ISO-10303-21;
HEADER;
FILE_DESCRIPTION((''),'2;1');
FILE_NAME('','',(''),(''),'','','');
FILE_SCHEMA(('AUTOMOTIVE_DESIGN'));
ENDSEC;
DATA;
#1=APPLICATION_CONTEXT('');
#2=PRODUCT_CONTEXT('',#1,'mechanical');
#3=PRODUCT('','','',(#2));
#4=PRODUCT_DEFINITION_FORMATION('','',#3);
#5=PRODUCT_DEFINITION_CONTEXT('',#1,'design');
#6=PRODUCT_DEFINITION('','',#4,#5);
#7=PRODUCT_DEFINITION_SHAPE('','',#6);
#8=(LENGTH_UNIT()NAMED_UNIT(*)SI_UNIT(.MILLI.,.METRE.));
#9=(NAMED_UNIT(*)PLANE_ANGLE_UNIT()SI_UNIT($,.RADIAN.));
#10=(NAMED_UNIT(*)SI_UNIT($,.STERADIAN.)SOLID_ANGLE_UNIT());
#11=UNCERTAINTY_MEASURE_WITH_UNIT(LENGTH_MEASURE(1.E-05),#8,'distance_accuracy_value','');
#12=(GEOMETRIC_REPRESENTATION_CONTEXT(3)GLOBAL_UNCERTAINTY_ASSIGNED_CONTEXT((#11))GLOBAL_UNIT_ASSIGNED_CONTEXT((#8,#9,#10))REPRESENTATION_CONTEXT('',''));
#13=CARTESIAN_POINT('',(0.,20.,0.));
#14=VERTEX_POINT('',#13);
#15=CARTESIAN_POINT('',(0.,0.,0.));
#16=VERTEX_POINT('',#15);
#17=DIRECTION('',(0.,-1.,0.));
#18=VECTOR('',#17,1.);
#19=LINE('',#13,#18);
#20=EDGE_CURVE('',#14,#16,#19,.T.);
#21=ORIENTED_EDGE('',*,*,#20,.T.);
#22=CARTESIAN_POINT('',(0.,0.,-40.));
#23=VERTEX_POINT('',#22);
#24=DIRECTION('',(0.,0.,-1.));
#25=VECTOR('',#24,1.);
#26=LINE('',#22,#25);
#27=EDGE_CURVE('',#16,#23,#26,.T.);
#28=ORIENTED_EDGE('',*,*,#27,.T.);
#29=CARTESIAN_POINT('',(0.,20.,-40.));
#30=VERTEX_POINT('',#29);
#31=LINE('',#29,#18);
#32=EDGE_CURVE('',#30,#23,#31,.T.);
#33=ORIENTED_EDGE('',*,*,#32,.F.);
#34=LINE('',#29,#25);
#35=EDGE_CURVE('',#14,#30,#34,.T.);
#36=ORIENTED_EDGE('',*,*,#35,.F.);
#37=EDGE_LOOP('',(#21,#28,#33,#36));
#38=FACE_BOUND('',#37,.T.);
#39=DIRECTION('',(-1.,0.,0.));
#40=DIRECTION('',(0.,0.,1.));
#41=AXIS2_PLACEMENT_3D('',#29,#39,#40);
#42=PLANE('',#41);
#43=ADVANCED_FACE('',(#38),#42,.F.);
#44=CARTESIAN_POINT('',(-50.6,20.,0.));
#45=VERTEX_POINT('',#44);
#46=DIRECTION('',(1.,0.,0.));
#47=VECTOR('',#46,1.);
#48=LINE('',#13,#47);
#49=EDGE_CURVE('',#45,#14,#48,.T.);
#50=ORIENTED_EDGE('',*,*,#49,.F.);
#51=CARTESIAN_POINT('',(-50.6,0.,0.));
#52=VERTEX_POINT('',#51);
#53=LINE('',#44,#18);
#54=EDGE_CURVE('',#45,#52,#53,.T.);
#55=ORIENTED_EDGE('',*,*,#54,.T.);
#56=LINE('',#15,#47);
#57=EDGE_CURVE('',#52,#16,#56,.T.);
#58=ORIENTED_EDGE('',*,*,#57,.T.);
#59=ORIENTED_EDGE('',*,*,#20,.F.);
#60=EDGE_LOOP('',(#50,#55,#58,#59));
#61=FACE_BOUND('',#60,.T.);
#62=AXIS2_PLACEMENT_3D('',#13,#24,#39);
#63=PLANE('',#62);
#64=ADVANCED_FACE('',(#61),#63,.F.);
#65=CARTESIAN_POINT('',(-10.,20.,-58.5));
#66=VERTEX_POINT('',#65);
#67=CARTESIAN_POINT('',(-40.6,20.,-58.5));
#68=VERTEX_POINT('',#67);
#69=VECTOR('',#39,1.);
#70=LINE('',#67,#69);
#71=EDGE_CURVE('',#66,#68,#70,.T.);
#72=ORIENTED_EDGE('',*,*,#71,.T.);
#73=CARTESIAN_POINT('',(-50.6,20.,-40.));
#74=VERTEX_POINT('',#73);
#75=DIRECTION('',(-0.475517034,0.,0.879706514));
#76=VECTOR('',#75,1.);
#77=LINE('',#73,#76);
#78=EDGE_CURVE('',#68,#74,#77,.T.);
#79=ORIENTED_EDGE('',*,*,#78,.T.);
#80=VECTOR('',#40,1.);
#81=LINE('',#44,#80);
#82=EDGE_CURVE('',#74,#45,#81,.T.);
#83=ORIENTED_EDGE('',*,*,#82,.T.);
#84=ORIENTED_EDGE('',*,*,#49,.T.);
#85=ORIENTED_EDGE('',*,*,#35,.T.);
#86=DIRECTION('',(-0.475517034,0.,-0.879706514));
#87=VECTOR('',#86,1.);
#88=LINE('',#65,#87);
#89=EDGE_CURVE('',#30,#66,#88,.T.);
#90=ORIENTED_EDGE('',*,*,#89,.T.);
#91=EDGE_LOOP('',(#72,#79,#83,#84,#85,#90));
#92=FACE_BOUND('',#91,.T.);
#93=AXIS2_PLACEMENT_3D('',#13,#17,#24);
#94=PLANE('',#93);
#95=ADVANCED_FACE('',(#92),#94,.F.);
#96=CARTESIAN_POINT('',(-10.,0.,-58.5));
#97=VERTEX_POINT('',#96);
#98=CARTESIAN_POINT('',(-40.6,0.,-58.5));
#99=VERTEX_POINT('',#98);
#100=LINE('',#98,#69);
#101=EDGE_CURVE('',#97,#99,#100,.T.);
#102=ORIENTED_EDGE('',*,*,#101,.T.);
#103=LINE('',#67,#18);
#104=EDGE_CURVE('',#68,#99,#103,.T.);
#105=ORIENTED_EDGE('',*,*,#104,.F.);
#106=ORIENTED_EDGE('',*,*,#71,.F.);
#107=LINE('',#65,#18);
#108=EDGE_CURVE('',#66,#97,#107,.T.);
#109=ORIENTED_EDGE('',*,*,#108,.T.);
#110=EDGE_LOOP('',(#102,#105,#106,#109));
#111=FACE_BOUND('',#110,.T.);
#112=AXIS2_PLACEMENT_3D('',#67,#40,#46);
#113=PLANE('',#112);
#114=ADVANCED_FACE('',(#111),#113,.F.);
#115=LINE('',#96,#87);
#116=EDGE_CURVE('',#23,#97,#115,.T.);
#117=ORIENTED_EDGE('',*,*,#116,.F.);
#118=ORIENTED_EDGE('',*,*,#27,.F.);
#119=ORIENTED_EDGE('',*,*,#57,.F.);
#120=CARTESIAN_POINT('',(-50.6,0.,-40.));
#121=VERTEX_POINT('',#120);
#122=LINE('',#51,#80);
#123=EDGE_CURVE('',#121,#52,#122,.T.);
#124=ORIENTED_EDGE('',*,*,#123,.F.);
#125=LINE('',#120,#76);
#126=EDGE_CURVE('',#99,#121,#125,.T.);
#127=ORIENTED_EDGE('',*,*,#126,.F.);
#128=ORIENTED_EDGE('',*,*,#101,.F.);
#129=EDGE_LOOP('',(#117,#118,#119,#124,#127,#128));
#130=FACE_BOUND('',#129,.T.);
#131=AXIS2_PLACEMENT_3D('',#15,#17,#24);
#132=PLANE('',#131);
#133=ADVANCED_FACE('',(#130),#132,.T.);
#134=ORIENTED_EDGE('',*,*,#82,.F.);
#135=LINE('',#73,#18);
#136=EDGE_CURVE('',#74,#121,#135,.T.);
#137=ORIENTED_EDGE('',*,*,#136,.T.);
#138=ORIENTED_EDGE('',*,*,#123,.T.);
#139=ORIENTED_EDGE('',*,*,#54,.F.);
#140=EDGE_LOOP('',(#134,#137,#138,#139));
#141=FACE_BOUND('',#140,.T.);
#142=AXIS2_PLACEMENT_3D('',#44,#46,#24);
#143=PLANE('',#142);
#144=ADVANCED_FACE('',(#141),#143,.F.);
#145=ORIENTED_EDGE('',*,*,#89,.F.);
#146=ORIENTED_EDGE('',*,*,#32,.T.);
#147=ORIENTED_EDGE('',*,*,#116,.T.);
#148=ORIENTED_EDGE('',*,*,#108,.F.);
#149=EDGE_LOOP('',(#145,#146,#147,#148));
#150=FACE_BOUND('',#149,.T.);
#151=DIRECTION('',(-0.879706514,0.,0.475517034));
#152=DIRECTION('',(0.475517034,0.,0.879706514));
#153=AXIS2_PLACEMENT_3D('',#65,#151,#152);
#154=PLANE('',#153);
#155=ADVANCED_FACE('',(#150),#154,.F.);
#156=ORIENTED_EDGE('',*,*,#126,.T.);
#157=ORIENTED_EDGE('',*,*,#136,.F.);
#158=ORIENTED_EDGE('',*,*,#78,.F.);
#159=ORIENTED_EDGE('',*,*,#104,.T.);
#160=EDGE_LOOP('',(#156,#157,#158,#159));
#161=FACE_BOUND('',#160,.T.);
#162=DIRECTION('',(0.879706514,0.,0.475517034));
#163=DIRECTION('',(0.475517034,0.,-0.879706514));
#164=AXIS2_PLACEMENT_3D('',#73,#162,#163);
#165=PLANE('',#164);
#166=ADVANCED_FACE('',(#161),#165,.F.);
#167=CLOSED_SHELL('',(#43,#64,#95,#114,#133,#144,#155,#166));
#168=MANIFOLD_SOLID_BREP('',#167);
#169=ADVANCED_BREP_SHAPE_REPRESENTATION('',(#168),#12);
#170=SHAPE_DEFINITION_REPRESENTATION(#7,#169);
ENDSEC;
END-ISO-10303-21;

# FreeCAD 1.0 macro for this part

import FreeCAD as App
import Part
import Sketcher
Q = App.Units.Quantity


def add_polygon(sketch, points):
    """Adds a closed chain of lines whose ends are joined by coincident constraints."""
    first, n = sketch.GeometryCount, len(points)
    for a, b in zip(points, points[1:] + points[:1]):
        sketch.addGeometry(Part.LineSegment(App.Vector(*a, 0), App.Vector(*b, 0)), False)
    for i in range(n):
        sketch.addConstraint(Sketcher.Constraint("Coincident", first + i, 2, first + (i + 1) % n, 1))

doc = App.newDocument("Part")
params = doc.addObject("Spreadsheet::Sheet", "Params")
for row, (alias, value) in enumerate([
    ("sketch1_height", "40 mm"),
    ("sketch1_width", "50.6 mm"),
    ("sketch1_width2", "30.6 mm"),
    ("pad1_length", "20 mm"),
], start=1):
    params.set(f"A{row}", alias)
    params.set(f"B{row}", "=" + value)
    params.setAlias(f"B{row}", alias)

body = doc.addObject("PartDesign::Body", "Body")

# Sketch on XZ plane
sketch1 = body.newObject("Sketcher::SketchObject", "Sketch")
sketch1.AttachmentSupport = (doc.getObject("XZ_Plane"), [""])
sketch1.MapMode = "FlatFace"
add_polygon(sketch1, [(-41, -58), (-51, -40), (-51, 0), (0, 0), (0, -40), (-10, -58)])  # lines 0-5
sketch1.addConstraint([
    Sketcher.Constraint("Vertical", 1),
    Sketcher.Constraint("Horizontal", 2),
    Sketcher.Constraint("Vertical", 3),
    Sketcher.Constraint("Horizontal", 5),
    Sketcher.Constraint("Coincident", 2, 2, -1, 1),
    Sketcher.Constraint("Horizontal", 0, 2, 3, 2),
    Sketcher.Constraint("Equal", 0, 4),
    Sketcher.Constraint("DistanceY", 1, 1, 1, 2, Q("40 mm")),
    Sketcher.Constraint("DistanceX", 2, 1, 2, 2, Q("50.6 mm")),
    Sketcher.Constraint("DistanceX", 5, 2, 5, 1, Q("30.6 mm")),
    Sketcher.Constraint("DistanceY", 4, 2, -1, 1, Q("58.5 mm")),
])
sketch1.setExpression("Constraints[13]", "Params.sketch1_height")
sketch1.setExpression("Constraints[14]", "Params.sketch1_width")
sketch1.setExpression("Constraints[15]", "Params.sketch1_width2")
pad1 = body.newObject("PartDesign::Pad", "Pad")
pad1.Profile = sketch1
pad1.setExpression("Length", "Params.pad1_length")
pad1.Reversed = True

doc.recompute()
